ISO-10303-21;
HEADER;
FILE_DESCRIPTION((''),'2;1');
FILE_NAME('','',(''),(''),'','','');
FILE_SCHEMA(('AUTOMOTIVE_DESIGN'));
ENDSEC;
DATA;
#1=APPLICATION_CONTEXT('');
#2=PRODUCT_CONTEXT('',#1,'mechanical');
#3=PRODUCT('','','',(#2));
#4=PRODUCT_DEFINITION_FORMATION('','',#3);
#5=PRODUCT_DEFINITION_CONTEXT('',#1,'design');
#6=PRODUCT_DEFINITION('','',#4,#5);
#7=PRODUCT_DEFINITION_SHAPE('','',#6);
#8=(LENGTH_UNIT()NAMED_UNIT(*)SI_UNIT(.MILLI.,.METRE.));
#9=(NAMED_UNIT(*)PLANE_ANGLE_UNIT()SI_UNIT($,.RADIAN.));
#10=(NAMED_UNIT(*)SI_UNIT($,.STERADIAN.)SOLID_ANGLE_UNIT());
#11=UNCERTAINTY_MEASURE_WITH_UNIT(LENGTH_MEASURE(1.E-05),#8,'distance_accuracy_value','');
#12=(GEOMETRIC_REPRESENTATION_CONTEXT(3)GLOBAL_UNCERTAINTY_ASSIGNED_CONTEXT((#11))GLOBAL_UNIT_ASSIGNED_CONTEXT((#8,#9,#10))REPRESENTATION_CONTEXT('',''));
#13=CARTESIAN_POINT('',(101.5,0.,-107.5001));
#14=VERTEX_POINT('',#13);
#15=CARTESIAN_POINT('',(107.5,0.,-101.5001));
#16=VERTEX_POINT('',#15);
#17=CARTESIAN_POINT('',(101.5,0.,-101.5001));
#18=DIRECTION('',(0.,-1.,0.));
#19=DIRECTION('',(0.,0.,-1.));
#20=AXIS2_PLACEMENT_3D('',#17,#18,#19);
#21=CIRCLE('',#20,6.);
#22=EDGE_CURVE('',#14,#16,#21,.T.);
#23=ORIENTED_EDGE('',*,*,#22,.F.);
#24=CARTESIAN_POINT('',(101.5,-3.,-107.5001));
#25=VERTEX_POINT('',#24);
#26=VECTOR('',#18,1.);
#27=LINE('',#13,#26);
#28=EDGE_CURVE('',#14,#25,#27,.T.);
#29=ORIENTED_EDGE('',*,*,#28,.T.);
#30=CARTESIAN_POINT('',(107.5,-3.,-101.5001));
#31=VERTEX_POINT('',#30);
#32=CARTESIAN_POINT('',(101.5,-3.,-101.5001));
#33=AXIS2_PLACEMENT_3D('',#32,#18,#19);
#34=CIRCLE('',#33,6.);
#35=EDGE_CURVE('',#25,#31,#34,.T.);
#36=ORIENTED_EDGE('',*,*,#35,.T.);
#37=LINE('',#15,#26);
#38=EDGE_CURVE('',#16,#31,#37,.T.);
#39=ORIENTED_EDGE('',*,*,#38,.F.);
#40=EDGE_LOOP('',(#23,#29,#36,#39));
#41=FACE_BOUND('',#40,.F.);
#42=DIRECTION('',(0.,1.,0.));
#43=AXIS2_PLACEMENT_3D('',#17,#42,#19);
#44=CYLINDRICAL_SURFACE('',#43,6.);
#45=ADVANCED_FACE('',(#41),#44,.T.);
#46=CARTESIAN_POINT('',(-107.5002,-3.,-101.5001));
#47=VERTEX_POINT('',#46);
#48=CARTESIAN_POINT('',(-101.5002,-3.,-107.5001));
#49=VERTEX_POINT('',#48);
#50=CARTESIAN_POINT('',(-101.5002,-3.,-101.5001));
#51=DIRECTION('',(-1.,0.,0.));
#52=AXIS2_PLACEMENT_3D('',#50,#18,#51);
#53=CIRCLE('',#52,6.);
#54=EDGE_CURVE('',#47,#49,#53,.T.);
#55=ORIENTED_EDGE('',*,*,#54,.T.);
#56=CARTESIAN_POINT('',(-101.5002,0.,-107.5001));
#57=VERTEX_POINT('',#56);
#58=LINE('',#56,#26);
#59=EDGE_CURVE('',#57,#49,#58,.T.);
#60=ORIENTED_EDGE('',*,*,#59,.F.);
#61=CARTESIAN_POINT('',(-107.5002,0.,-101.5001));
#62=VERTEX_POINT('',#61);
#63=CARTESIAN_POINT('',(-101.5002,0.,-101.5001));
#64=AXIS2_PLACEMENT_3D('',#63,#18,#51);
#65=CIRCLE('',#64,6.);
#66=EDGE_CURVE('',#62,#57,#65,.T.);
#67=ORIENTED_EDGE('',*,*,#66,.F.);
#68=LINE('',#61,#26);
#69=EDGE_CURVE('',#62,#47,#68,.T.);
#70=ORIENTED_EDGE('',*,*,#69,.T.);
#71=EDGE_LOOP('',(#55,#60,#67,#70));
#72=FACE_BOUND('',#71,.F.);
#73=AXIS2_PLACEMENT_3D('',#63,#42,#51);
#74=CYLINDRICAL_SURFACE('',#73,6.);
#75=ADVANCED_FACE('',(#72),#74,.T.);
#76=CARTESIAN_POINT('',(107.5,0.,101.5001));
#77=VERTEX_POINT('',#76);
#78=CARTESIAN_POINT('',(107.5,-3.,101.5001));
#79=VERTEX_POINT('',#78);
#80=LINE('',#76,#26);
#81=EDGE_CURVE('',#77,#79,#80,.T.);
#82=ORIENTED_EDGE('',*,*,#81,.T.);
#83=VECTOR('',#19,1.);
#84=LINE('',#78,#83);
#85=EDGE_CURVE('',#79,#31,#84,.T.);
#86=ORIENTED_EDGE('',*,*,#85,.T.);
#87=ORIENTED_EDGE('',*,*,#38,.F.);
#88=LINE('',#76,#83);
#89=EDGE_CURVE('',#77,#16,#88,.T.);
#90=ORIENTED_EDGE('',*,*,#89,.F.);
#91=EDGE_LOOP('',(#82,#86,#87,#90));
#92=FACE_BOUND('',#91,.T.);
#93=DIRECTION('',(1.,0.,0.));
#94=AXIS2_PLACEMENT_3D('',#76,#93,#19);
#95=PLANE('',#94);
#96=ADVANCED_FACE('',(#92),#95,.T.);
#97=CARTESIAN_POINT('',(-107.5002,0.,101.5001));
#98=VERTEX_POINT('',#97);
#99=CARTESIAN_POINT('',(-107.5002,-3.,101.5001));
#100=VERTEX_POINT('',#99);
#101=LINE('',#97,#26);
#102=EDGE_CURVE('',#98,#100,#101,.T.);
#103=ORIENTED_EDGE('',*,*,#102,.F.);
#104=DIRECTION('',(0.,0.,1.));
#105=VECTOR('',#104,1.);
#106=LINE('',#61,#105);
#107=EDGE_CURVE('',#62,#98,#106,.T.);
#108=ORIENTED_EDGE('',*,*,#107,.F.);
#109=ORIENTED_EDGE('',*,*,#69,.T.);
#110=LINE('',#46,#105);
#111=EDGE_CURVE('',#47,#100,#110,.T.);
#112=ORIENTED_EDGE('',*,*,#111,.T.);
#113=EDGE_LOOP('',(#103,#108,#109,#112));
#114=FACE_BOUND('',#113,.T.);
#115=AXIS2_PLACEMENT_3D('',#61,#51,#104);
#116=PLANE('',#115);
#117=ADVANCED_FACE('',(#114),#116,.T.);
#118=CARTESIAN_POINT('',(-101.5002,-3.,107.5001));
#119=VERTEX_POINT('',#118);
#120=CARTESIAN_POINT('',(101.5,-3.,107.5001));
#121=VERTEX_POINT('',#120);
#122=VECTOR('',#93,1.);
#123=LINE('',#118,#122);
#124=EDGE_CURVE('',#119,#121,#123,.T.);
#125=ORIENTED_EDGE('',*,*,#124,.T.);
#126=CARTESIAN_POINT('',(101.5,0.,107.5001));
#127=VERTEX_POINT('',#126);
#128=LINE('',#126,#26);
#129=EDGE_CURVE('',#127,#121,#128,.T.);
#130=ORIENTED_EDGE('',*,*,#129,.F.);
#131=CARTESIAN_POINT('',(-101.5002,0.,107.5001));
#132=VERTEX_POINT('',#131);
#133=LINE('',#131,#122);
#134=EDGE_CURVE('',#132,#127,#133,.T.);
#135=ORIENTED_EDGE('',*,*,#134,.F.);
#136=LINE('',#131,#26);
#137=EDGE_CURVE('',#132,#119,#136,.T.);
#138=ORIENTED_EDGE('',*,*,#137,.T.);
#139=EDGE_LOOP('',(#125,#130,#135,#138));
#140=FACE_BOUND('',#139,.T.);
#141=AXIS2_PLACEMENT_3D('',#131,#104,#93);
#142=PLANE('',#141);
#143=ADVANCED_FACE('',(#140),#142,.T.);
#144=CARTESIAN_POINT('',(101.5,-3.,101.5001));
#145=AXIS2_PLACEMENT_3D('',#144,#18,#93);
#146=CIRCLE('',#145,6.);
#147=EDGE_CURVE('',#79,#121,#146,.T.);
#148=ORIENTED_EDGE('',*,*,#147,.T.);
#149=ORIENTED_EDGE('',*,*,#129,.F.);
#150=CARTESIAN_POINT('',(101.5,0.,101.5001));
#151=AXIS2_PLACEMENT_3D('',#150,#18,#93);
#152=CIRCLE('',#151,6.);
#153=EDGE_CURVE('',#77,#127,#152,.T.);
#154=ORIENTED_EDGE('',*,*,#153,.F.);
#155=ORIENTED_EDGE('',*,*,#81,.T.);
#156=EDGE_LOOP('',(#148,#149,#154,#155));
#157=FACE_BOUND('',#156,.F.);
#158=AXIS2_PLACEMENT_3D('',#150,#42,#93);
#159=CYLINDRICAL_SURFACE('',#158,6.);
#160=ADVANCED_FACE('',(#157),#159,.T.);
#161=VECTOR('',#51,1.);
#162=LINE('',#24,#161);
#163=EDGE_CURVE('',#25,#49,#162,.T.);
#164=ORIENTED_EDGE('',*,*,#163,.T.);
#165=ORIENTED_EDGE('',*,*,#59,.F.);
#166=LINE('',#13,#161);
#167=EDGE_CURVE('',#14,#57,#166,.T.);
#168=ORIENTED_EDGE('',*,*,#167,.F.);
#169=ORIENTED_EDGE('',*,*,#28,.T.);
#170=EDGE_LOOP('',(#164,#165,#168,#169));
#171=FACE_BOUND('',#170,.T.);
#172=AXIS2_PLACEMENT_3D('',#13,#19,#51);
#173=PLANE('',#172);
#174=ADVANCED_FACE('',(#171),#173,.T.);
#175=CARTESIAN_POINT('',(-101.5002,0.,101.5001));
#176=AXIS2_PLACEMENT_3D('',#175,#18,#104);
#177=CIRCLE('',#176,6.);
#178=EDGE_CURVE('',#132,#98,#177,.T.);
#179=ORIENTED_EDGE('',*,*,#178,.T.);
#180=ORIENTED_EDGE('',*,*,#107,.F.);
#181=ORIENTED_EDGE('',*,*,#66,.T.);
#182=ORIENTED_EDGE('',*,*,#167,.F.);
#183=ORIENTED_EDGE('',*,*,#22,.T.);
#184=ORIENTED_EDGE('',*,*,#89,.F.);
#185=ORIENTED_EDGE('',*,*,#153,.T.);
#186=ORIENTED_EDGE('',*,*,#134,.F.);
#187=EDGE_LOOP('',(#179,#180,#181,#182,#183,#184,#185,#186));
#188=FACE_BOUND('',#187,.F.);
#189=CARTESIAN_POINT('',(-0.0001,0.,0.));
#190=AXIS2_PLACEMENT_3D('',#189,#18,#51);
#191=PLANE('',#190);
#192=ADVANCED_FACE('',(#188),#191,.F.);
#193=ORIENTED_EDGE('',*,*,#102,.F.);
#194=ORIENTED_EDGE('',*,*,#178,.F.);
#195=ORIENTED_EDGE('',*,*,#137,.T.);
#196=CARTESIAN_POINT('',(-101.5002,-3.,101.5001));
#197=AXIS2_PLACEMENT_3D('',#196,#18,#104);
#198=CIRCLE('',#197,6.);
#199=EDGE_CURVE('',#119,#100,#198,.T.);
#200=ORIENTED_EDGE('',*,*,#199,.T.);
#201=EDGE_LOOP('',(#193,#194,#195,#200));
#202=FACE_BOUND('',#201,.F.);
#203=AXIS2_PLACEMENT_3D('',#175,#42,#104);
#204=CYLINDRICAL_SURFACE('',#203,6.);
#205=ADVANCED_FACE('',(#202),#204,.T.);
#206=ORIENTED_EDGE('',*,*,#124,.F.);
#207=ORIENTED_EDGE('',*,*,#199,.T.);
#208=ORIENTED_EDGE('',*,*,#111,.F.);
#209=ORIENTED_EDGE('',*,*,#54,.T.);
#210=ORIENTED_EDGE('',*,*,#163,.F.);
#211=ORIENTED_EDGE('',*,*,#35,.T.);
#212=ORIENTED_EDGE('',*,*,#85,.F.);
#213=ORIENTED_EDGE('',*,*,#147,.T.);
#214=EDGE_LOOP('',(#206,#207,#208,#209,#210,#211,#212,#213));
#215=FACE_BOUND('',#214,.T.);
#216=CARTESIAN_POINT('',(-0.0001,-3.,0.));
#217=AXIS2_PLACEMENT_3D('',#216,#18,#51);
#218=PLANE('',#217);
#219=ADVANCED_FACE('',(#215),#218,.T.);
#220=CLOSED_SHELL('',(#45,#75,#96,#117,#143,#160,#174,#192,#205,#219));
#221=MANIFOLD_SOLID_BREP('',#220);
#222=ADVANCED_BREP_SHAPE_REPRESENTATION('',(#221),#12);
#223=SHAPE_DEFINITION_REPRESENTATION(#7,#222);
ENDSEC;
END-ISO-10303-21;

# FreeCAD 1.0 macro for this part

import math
import FreeCAD as App
import Part
import Sketcher

V = App.Vector
Q = App.Units.Quantity

doc = App.newDocument("Part")
body = doc.addObject("PartDesign::Body", "Body")

sketch1 = body.newObject("Sketcher::SketchObject", "Sketch")
sketch1.AttachmentSupport = (doc.getObject("XZ_Plane"), [""])
sketch1.MapMode = "FlatFace"
sketch1.addGeometry([
    Part.LineSegment(V(102, 108, 0), V(-102, 108, 0)),
    Part.ArcOfCircle(Part.Circle(V(-102, 102, 0), V(0, 0, 1), 6), math.radians(90), math.radians(180)),
    Part.LineSegment(V(-108, 102, 0), V(-108, -102, 0)),
    Part.ArcOfCircle(Part.Circle(V(-102, -102, 0), V(0, 0, 1), 6), math.radians(180), math.radians(270)),
    Part.LineSegment(V(-102, -108, 0), V(102, -108, 0)),
    Part.ArcOfCircle(Part.Circle(V(102, -102, 0), V(0, 0, 1), 6), math.radians(-90), math.radians(0)),
    Part.LineSegment(V(108, -102, 0), V(108, 102, 0)),
    Part.ArcOfCircle(Part.Circle(V(102, 102, 0), V(0, 0, 1), 6), math.radians(0), math.radians(90)),
], False)
sketch1.addConstraint([
    Sketcher.Constraint("Tangent", 0, 2, 1, 1),
    Sketcher.Constraint("Tangent", 1, 2, 2, 1),
    Sketcher.Constraint("Tangent", 2, 2, 3, 1),
    Sketcher.Constraint("Tangent", 3, 2, 4, 1),
    Sketcher.Constraint("Tangent", 4, 2, 5, 1),
    Sketcher.Constraint("Tangent", 5, 2, 6, 1),
    Sketcher.Constraint("Tangent", 6, 2, 7, 1),
    Sketcher.Constraint("Tangent", 7, 2, 0, 1),
    Sketcher.Constraint("Horizontal", 0),
    Sketcher.Constraint("Vertical", 2),
    Sketcher.Constraint("Horizontal", 4),
    Sketcher.Constraint("Vertical", 6),
    Sketcher.Constraint("Equal", 1, 3),
    Sketcher.Constraint("Equal", 3, 5),
    Sketcher.Constraint("Equal", 5, 7),
    Sketcher.Constraint("Symmetric", 1, 3, 5, 3, -1, 1),
    Sketcher.Constraint("Equal", 4, 2),
    Sketcher.Constraint("Radius", 1, Q("6 mm")),
    Sketcher.Constraint("DistanceY", -1, 1, 1, 3, Q("101.5 mm")),
])
pad1 = body.newObject("PartDesign::Pad", "Pad")
pad1.Profile = sketch1
pad1.Length = 3

doc.recompute()
